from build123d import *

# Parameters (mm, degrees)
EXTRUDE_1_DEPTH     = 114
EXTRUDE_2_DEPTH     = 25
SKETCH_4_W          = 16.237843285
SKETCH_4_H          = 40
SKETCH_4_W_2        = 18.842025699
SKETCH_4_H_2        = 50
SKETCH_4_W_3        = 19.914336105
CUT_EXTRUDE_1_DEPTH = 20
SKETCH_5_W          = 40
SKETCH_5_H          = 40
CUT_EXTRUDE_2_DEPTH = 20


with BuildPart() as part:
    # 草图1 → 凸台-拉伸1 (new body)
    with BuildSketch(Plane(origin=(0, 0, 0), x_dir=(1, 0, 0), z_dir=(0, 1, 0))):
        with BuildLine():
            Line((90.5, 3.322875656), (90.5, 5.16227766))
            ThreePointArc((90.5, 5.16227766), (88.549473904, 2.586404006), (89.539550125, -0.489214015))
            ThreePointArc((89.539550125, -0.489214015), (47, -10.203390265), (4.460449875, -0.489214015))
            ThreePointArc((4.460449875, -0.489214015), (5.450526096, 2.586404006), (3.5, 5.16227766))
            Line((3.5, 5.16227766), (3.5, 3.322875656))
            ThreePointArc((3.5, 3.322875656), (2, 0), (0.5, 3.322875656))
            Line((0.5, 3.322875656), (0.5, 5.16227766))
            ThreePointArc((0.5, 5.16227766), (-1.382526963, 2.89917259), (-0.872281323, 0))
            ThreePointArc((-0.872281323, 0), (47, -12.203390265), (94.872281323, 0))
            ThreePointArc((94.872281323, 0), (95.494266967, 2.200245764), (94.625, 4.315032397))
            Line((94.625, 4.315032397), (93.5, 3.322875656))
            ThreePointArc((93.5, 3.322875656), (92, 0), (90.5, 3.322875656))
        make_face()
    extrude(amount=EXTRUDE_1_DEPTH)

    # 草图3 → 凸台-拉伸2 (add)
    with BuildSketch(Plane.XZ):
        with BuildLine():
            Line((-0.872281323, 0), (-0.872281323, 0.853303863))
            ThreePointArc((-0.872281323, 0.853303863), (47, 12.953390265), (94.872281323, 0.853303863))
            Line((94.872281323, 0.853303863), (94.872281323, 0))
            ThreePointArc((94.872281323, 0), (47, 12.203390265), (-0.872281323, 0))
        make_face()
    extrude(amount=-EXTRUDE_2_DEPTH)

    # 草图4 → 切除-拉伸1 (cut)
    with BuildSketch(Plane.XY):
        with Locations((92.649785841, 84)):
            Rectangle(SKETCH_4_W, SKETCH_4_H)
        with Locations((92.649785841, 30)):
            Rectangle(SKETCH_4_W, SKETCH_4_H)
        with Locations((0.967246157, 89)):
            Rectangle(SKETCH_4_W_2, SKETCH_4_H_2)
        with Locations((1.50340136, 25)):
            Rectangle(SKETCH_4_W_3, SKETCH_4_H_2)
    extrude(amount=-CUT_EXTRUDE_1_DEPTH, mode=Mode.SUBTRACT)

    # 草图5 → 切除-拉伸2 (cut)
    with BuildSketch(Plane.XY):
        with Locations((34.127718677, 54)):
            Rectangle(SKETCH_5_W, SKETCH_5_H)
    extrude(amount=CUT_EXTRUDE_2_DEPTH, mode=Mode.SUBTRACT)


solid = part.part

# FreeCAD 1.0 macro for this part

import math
import FreeCAD as App
import Part
import Sketcher
from FreeCAD import Vector


def add_polygon(sketch, points):
    """Adds a closed chain of lines whose ends are joined by coincident constraints."""
    first, n = sketch.GeometryCount, len(points)
    for a, b in zip(points, points[1:] + points[:1]):
        sketch.addGeometry(Part.LineSegment(App.Vector(*a, 0), App.Vector(*b, 0)), False)
    for i in range(n):
        sketch.addConstraint(Sketcher.Constraint("Coincident", first + i, 2, first + (i + 1) % n, 1))

doc = App.newDocument("Part")
body = doc.addObject("PartDesign::Body", "Body")

# Sketch on XZ plane
sketch1 = body.newObject("Sketcher::SketchObject", "Sketch")
sketch1.AttachmentSupport = (doc.getObject("XZ_Plane"), [""])
sketch1.MapMode = "FlatFace"
sketch1.addGeometry(Part.LineSegment(Vector(90.5, -3.322876, 0), Vector(90.5, -5.162278, 0)), False)
sketch1.addGeometry(Part.ArcOfCircle(Part.Circle(Vector(92, -2, 0), Vector(0, 0, 1), 3.5), math.radians(134.667039), math.radians(244.623066)), False)
sketch1.addGeometry(Part.ArcOfCircle(Part.Circle(Vector(47, -87.79661, 0), Vector(0, 0, 1), 98), math.radians(64.273421), math.radians(115.726579)), False)
sketch1.addGeometry(Part.ArcOfCircle(Part.Circle(Vector(2, -2, 0), Vector(0, 0, 1), 3.5), math.radians(-64.623066), math.radians(45.332961)), False)
sketch1.addGeometry(Part.LineSegment(Vector(3.5, -5.162278, 0), Vector(3.5, -3.322876, 0)), False)
sketch1.addGeometry(Part.ArcOfCircle(Part.Circle(Vector(2, -2, 0), Vector(0, 0, 1), 2), math.radians(-41.409622), math.radians(221.409622)), False)
sketch1.addGeometry(Part.LineSegment(Vector(0.5, -3.322876, 0), Vector(0.5, -5.162278, 0)), False)
sketch1.addGeometry(Part.ArcOfCircle(Part.Circle(Vector(2, -2, 0), Vector(0, 0, 1), 3.5), math.radians(145.150095), math.radians(244.623066)), False)
sketch1.addGeometry(Part.ArcOfCircle(Part.Circle(Vector(47, -87.79661, 0), Vector(0, 0, 1), 100), math.radians(61.39798), math.radians(118.60202)), False)
sketch1.addGeometry(Part.ArcOfCircle(Part.Circle(Vector(92, -2, 0), Vector(0, 0, 1), 3.5), math.radians(-41.409622), math.radians(34.849905)), False)
sketch1.addGeometry(Part.LineSegment(Vector(94.625, -4.315032, 0), Vector(93.5, -3.322876, 0)), False)
sketch1.addGeometry(Part.ArcOfCircle(Part.Circle(Vector(92, -2, 0), Vector(0, 0, 1), 2), math.radians(-41.409622), math.radians(221.409622)), False)
sketch1.addConstraint(Sketcher.Constraint("Coincident", 0, 2, 1, 2))
sketch1.addConstraint(Sketcher.Constraint("Coincident", 1, 1, 2, 1))
sketch1.addConstraint(Sketcher.Constraint("Coincident", 2, 2, 3, 2))
sketch1.addConstraint(Sketcher.Constraint("Coincident", 3, 1, 4, 1))
sketch1.addConstraint(Sketcher.Constraint("Coincident", 4, 2, 5, 1))
sketch1.addConstraint(Sketcher.Constraint("Coincident", 5, 2, 6, 1))
sketch1.addConstraint(Sketcher.Constraint("Coincident", 6, 2, 7, 2))
sketch1.addConstraint(Sketcher.Constraint("Coincident", 7, 1, 8, 2))
sketch1.addConstraint(Sketcher.Constraint("Coincident", 8, 1, 9, 2))
sketch1.addConstraint(Sketcher.Constraint("Coincident", 9, 1, 10, 1))
sketch1.addConstraint(Sketcher.Constraint("Coincident", 10, 2, 11, 1))
sketch1.addConstraint(Sketcher.Constraint("Coincident", 11, 2, 0, 1))
sketch1.addConstraint(Sketcher.Constraint("Vertical", 0))
sketch1.addConstraint(Sketcher.Constraint("Vertical", 4))
sketch1.addConstraint(Sketcher.Constraint("Vertical", 6))
sketch1.addConstraint(Sketcher.Constraint("Coincident", 5, 3, 3, 3))
sketch1.addConstraint(Sketcher.Constraint("Coincident", 7, 3, 3, 3))
sketch1.addConstraint(Sketcher.Constraint("Coincident", 8, 3, 2, 3))
sketch1.addConstraint(Sketcher.Constraint("Coincident", 9, 3, 1, 3))
sketch1.addConstraint(Sketcher.Constraint("Coincident", 11, 3, 1, 3))
sketch1.addConstraint(Sketcher.Constraint("Equal", 1, 3))
sketch1.addConstraint(Sketcher.Constraint("Equal", 3, 7))
sketch1.addConstraint(Sketcher.Constraint("Equal", 7, 9))
sketch1.addConstraint(Sketcher.Constraint("Equal", 5, 11))
sketch1.addConstraint(Sketcher.Constraint("PointOnObject", 7, 1, -1))
sketch1.addConstraint(Sketcher.Constraint("PointOnObject", 8, 1, -1))
sketch1.addConstraint(Sketcher.Constraint("Horizontal", 1, 3, 3, 3))
sketch1.addConstraint(Sketcher.Constraint("Horizontal", 0, 2, 3, 1))
sketch1.addConstraint(Sketcher.Constraint("Horizontal", 4, 2, 5, 2))
sketch1.addConstraint(Sketcher.Constraint("Horizontal", 5, 2, 10, 2))
sketch1.addConstraint(Sketcher.Constraint("Radius", 2, 98.0))
sketch1.addConstraint(Sketcher.Constraint("Radius", 5, 2.0))
sketch1.addConstraint(Sketcher.Constraint("Radius", 8, 100.0))
sketch1.addConstraint(Sketcher.Constraint("Radius", 1, 3.5))
sketch1.addConstraint(Sketcher.Constraint("DistanceX", -1, 1, 1, 3, 92.0))
sketch1.addConstraint(Sketcher.Constraint("DistanceY", 1, 3, -1, 1, 2.0))
sketch1.addConstraint(Sketcher.Constraint("DistanceX", -1, 1, 2, 3, 47.0))
sketch1.addConstraint(Sketcher.Constraint("DistanceX", 5, 2, 4, 2, 3.0))
sketch1.addConstraint(Sketcher.Constraint("DistanceX", -1, 1, 9, 1, 94.625))
pad1 = body.newObject("PartDesign::Pad", "Pad")
pad1.Profile = sketch1
pad1.Length = 114
pad1.Reversed = True

# Sketch on XZ plane
sketch2 = body.newObject("Sketcher::SketchObject", "Sketch001")
sketch2.AttachmentSupport = (doc.getObject("XZ_Plane"), [""])
sketch2.MapMode = "FlatFace"
sketch2.addGeometry(Part.LineSegment(Vector(-0.872281, 0.853304, 0), Vector(-0.872281, 0, 0)), False)
sketch2.addGeometry(Part.ArcOfCircle(Part.Circle(Vector(47, -87.79661, 0), Vector(0, 0, 1), 100), math.radians(61.39798), math.radians(118.60202)), False)
sketch2.addGeometry(Part.LineSegment(Vector(94.872281, 0, 0), Vector(94.872281, 0.853304, 0)), False)
sketch2.addGeometry(Part.ArcOfCircle(Part.Circle(Vector(47, -87.79661, 0), Vector(0, 0, 1), 100.75), math.radians(61.630289), math.radians(118.369711)), False)
sketch2.addConstraint(Sketcher.Constraint("Coincident", 0, 2, 1, 2))
sketch2.addConstraint(Sketcher.Constraint("Coincident", 1, 1, 2, 1))
sketch2.addConstraint(Sketcher.Constraint("Coincident", 2, 2, 3, 1))
sketch2.addConstraint(Sketcher.Constraint("Coincident", 3, 2, 0, 1))
sketch2.addConstraint(Sketcher.Constraint("Vertical", 0))
sketch2.addConstraint(Sketcher.Constraint("Vertical", 2))
sketch2.addConstraint(Sketcher.Constraint("Coincident", 3, 3, 1, 3))
sketch2.addConstraint(Sketcher.Constraint("PointOnObject", 0, 2, -1))
sketch2.addConstraint(Sketcher.Constraint("PointOnObject", 1, 1, -1))
sketch2.addConstraint(Sketcher.Constraint("Radius", 1, 100.0))
sketch2.addConstraint(Sketcher.Constraint("Radius", 3, 100.75))
sketch2.addConstraint(Sketcher.Constraint("DistanceX", -1, 1, 1, 3, 47.0))
sketch2.addConstraint(Sketcher.Constraint("DistanceY", 1, 3, -1, 1, 87.79661))
pad2 = body.newObject("PartDesign::Pad", "Pad001")
pad2.Profile = sketch2
pad2.Length = 25
pad2.Reversed = True

# Sketch on XY plane
sketch3 = body.newObject("Sketcher::SketchObject", "Sketch002")
sketch3.AttachmentSupport = (doc.getObject("XY_Plane"), [""])
sketch3.MapMode = "FlatFace"
add_polygon(sketch3, [(84.530864, 104), (84.530864, 64), (100.768707, 64), (100.768707, 104)])  # lines 0-3
add_polygon(sketch3, [(84.530864, 50), (84.530864, 10), (100.768707, 10), (100.768707, 50)])  # lines 4-7
add_polygon(sketch3, [(-8.453767, 114), (-8.453767, 64), (10.388259, 64), (10.388259, 114)])  # lines 8-11
add_polygon(sketch3, [(-8.453767, 50), (-8.453767, 0), (11.460569, 0), (11.460569, 50)])  # lines 12-15
sketch3.addConstraint(Sketcher.Constraint("Vertical", 0))
sketch3.addConstraint(Sketcher.Constraint("Horizontal", 1))
sketch3.addConstraint(Sketcher.Constraint("Vertical", 2))
sketch3.addConstraint(Sketcher.Constraint("Horizontal", 3))
sketch3.addConstraint(Sketcher.Constraint("Vertical", 4))
sketch3.addConstraint(Sketcher.Constraint("Horizontal", 5))
sketch3.addConstraint(Sketcher.Constraint("Vertical", 6))
sketch3.addConstraint(Sketcher.Constraint("Horizontal", 7))
sketch3.addConstraint(Sketcher.Constraint("Vertical", 8))
sketch3.addConstraint(Sketcher.Constraint("Horizontal", 9))
sketch3.addConstraint(Sketcher.Constraint("Vertical", 10))
sketch3.addConstraint(Sketcher.Constraint("Horizontal", 11))
sketch3.addConstraint(Sketcher.Constraint("Vertical", 12))
sketch3.addConstraint(Sketcher.Constraint("Horizontal", 13))
sketch3.addConstraint(Sketcher.Constraint("Vertical", 14))
sketch3.addConstraint(Sketcher.Constraint("Horizontal", 15))
sketch3.addConstraint(Sketcher.Constraint("PointOnObject", 12, 2, -1))
sketch3.addConstraint(Sketcher.Constraint("Horizontal", 1, 2, 8, 2))
sketch3.addConstraint(Sketcher.Constraint("Horizontal", 7, 2, 14, 2))
sketch3.addConstraint(Sketcher.Constraint("Vertical", 3, 2, 4, 2))
sketch3.addConstraint(Sketcher.Constraint("Vertical", 2, 2, 5, 2))
sketch3.addConstraint(Sketcher.Constraint("Vertical", 11, 2, 12, 2))
sketch3.addConstraint(Sketcher.Constraint("Equal", 2, 4))
sketch3.addConstraint(Sketcher.Constraint("Equal", 10, 12))
sketch3.addConstraint(Sketcher.Constraint("DistanceY", 0, 2, 0, 1, 40.0))
sketch3.addConstraint(Sketcher.Constraint("DistanceY", 8, 2, 8, 1, 50.0))
sketch3.addConstraint(Sketcher.Constraint("DistanceY", -1, 1, 0, 2, 64.0))
sketch3.addConstraint(Sketcher.Constraint("DistanceX", 1, 1, 1, 2, 16.237843))
sketch3.addConstraint(Sketcher.Constraint("DistanceX", 9, 1, 9, 2, 18.842026))
sketch3.addConstraint(Sketcher.Constraint("DistanceX", 13, 1, 13, 2, 19.914336))
sketch3.addConstraint(Sketcher.Constraint("DistanceX", -1, 1, 9, 2, 10.388259))
sketch3.addConstraint(Sketcher.Constraint("DistanceX", 8, 2, 0, 2, 92.984631))
pocket1 = body.newObject("PartDesign::Pocket", "Pocket")
pocket1.Profile = sketch3
pocket1.Length = 20

# Sketch on XY plane
sketch4 = body.newObject("Sketcher::SketchObject", "Sketch003")
sketch4.AttachmentSupport = (doc.getObject("XY_Plane"), [""])
sketch4.MapMode = "FlatFace"
add_polygon(sketch4, [(14.127719, 74), (14.127719, 34), (54.127719, 34), (54.127719, 74)])  # lines 0-3
sketch4.addConstraint(Sketcher.Constraint("Vertical", 0))
sketch4.addConstraint(Sketcher.Constraint("Horizontal", 1))
sketch4.addConstraint(Sketcher.Constraint("Vertical", 2))
sketch4.addConstraint(Sketcher.Constraint("Horizontal", 3))
sketch4.addConstraint(Sketcher.Constraint("Equal", 3, 0))
sketch4.addConstraint(Sketcher.Constraint("DistanceX", 1, 1, 1, 2, 40.0))
sketch4.addConstraint(Sketcher.Constraint("DistanceY", -1, 1, 0, 2, 34.0))
sketch4.addConstraint(Sketcher.Constraint("DistanceX", -1, 1, 0, 2, 14.127719))
pocket2 = body.newObject("PartDesign::Pocket", "Pocket001")
pocket2.Profile = sketch4
pocket2.Length = 20
pocket2.Reversed = True

doc.recompute()
